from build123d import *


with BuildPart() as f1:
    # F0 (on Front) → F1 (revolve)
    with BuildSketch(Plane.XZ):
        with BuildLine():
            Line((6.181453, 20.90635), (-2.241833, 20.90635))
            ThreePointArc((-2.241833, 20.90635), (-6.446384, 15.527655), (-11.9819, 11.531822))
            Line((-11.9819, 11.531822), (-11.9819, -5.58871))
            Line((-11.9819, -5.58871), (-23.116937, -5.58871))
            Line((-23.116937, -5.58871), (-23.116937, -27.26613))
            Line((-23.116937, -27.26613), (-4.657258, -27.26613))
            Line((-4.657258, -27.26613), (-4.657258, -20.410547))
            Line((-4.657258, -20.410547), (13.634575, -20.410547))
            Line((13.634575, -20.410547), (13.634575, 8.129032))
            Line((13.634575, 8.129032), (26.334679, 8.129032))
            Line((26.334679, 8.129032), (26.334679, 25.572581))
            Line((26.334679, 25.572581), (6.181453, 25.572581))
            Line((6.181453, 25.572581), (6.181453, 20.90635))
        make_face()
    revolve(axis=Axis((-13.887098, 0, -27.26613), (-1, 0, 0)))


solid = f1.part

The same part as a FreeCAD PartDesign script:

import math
import FreeCAD as App
import Part
import Sketcher

V = App.Vector
Q = App.Units.Quantity

doc = App.newDocument("Part")
params = doc.addObject("Spreadsheet::Sheet", "Params")
for row, (alias, value) in enumerate([
    ("revolution_angle", "360 deg"),
], start=1):
    params.set(f"A{row}", alias)
    params.set(f"B{row}", "=" + value)
    params.setAlias(f"B{row}", alias)

body = doc.addObject("PartDesign::Body", "Body")

sketch1 = doc.addObject("Sketcher::SketchObject", "Sketch")
body.addObject(sketch1)
sketch1.AttachmentSupport = (doc.XZ_Plane, [""])
sketch1.MapMode = "FlatFace"
sketch1.addGeometry([
    Part.LineSegment(V(6.2, 20.9, 0), V(-2.2, 20.9, 0)),
    Part.ArcOfCircle(Part.Circle(V(-23.3, 33, 0), V(0, 0, 1), 24.3), math.radians(-62), math.radians(-30)),
    Part.LineSegment(V(-12, 11.5, 0), V(-12, -5.6, 0)),
    Part.LineSegment(V(-12, -5.6, 0), V(-23.1, -5.6, 0)),
    Part.LineSegment(V(-23.1, -5.6, 0), V(-23.1, -27.3, 0)),
    Part.LineSegment(V(-23.1, -27.3, 0), V(-4.7, -27.3, 0)),
    Part.LineSegment(V(-4.7, -27.3, 0), V(-4.7, -20.4, 0)),
    Part.LineSegment(V(-4.7, -20.4, 0), V(13.6, -20.4, 0)),
    Part.LineSegment(V(13.6, -20.4, 0), V(13.6, 8.1, 0)),
    Part.LineSegment(V(13.6, 8.1, 0), V(26.3, 8.1, 0)),
    Part.LineSegment(V(26.3, 8.1, 0), V(26.3, 25.6, 0)),
    Part.LineSegment(V(26.3, 25.6, 0), V(6.2, 25.6, 0)),
    Part.LineSegment(V(6.2, 25.6, 0), V(6.2, 20.9, 0)),
], False)
sketch1.addGeometry(Part.LineSegment(V(26.3, -27.3, 0), V(-23.3, -27.3, 0)), True)
sketch1.addConstraint([
    Sketcher.Constraint("Coincident", 0, 2, 1, 2),
    Sketcher.Constraint("Coincident", 1, 1, 2, 1),
    Sketcher.Constraint("Coincident", 2, 2, 3, 1),
    Sketcher.Constraint("Coincident", 3, 2, 4, 1),
    Sketcher.Constraint("Coincident", 4, 2, 5, 1),
    Sketcher.Constraint("Coincident", 5, 2, 6, 1),
    Sketcher.Constraint("Coincident", 6, 2, 7, 1),
    Sketcher.Constraint("Coincident", 7, 2, 8, 1),
    Sketcher.Constraint("Coincident", 8, 2, 9, 1),
    Sketcher.Constraint("Coincident", 9, 2, 10, 1),
    Sketcher.Constraint("Coincident", 10, 2, 11, 1),
    Sketcher.Constraint("Coincident", 11, 2, 12, 1),
    Sketcher.Constraint("Coincident", 12, 2, 0, 1),
    Sketcher.Constraint("Horizontal", 0),
    Sketcher.Constraint("Vertical", 2),
    Sketcher.Constraint("Horizontal", 3),
    Sketcher.Constraint("Vertical", 4),
    Sketcher.Constraint("Horizontal", 5),
    Sketcher.Constraint("Vertical", 6),
    Sketcher.Constraint("Horizontal", 7),
    Sketcher.Constraint("Vertical", 8),
    Sketcher.Constraint("Horizontal", 9),
    Sketcher.Constraint("Vertical", 10),
    Sketcher.Constraint("Horizontal", 11),
    Sketcher.Constraint("Vertical", 12),
    Sketcher.Constraint("Horizontal", 13),
    Sketcher.Constraint("Horizontal", 5, 2, 13, 1),
    Sketcher.Constraint("Vertical", 10, 2, 13, 1),
    Sketcher.Constraint("Vertical", 1, 3, 13, 2),
    Sketcher.Constraint("Radius", 1, Q("24.283967 mm")),
    Sketcher.Constraint("DistanceX", 5, 1, 5, 2, Q("18.459679 mm")),
    Sketcher.Constraint("DistanceY", 4, 2, 4, 1, Q("21.67742 mm")),
    Sketcher.Constraint("DistanceY", 8, 1, 8, 2, Q("28.539579 mm")),
    Sketcher.Constraint("DistanceY", 10, 1, 10, 2, Q("17.443549 mm")),
    Sketcher.Constraint("DistanceY", 12, 2, 12, 1, Q("4.666231 mm")),
    Sketcher.Constraint("DistanceX", 1, 1, -1, 1, Q("11.9819 mm")),
    Sketcher.Constraint("DistanceY", 2, 2, 1, 3, Q("38.612901 mm")),
    Sketcher.Constraint("DistanceX", 0, 2, 0, 1, Q("8.423286 mm")),
    Sketcher.Constraint("DistanceX", 3, 2, 3, 1, Q("11.135037 mm")),
    Sketcher.Constraint("DistanceX", 7, 1, 7, 2, Q("18.291833 mm")),
    Sketcher.Constraint("DistanceX", 9, 1, 9, 2, Q("12.700104 mm")),
    Sketcher.Constraint("DistanceX", 11, 2, 11, 1, Q("20.153226 mm")),
    Sketcher.Constraint("DistanceX", 13, 2, 13, 1, Q("49.620965 mm")),
    Sketcher.Constraint("DistanceY", -1, 1, 1, 3, Q("33.024191 mm")),
])
revolution = doc.addObject("PartDesign::Revolution", "Revolution")
body.addObject(revolution)
revolution.Profile = sketch1
revolution.ReferenceAxis = (sketch1, ["Axis0"])
revolution.setExpression("Angle", "Params.revolution_angle")

doc.recompute()
